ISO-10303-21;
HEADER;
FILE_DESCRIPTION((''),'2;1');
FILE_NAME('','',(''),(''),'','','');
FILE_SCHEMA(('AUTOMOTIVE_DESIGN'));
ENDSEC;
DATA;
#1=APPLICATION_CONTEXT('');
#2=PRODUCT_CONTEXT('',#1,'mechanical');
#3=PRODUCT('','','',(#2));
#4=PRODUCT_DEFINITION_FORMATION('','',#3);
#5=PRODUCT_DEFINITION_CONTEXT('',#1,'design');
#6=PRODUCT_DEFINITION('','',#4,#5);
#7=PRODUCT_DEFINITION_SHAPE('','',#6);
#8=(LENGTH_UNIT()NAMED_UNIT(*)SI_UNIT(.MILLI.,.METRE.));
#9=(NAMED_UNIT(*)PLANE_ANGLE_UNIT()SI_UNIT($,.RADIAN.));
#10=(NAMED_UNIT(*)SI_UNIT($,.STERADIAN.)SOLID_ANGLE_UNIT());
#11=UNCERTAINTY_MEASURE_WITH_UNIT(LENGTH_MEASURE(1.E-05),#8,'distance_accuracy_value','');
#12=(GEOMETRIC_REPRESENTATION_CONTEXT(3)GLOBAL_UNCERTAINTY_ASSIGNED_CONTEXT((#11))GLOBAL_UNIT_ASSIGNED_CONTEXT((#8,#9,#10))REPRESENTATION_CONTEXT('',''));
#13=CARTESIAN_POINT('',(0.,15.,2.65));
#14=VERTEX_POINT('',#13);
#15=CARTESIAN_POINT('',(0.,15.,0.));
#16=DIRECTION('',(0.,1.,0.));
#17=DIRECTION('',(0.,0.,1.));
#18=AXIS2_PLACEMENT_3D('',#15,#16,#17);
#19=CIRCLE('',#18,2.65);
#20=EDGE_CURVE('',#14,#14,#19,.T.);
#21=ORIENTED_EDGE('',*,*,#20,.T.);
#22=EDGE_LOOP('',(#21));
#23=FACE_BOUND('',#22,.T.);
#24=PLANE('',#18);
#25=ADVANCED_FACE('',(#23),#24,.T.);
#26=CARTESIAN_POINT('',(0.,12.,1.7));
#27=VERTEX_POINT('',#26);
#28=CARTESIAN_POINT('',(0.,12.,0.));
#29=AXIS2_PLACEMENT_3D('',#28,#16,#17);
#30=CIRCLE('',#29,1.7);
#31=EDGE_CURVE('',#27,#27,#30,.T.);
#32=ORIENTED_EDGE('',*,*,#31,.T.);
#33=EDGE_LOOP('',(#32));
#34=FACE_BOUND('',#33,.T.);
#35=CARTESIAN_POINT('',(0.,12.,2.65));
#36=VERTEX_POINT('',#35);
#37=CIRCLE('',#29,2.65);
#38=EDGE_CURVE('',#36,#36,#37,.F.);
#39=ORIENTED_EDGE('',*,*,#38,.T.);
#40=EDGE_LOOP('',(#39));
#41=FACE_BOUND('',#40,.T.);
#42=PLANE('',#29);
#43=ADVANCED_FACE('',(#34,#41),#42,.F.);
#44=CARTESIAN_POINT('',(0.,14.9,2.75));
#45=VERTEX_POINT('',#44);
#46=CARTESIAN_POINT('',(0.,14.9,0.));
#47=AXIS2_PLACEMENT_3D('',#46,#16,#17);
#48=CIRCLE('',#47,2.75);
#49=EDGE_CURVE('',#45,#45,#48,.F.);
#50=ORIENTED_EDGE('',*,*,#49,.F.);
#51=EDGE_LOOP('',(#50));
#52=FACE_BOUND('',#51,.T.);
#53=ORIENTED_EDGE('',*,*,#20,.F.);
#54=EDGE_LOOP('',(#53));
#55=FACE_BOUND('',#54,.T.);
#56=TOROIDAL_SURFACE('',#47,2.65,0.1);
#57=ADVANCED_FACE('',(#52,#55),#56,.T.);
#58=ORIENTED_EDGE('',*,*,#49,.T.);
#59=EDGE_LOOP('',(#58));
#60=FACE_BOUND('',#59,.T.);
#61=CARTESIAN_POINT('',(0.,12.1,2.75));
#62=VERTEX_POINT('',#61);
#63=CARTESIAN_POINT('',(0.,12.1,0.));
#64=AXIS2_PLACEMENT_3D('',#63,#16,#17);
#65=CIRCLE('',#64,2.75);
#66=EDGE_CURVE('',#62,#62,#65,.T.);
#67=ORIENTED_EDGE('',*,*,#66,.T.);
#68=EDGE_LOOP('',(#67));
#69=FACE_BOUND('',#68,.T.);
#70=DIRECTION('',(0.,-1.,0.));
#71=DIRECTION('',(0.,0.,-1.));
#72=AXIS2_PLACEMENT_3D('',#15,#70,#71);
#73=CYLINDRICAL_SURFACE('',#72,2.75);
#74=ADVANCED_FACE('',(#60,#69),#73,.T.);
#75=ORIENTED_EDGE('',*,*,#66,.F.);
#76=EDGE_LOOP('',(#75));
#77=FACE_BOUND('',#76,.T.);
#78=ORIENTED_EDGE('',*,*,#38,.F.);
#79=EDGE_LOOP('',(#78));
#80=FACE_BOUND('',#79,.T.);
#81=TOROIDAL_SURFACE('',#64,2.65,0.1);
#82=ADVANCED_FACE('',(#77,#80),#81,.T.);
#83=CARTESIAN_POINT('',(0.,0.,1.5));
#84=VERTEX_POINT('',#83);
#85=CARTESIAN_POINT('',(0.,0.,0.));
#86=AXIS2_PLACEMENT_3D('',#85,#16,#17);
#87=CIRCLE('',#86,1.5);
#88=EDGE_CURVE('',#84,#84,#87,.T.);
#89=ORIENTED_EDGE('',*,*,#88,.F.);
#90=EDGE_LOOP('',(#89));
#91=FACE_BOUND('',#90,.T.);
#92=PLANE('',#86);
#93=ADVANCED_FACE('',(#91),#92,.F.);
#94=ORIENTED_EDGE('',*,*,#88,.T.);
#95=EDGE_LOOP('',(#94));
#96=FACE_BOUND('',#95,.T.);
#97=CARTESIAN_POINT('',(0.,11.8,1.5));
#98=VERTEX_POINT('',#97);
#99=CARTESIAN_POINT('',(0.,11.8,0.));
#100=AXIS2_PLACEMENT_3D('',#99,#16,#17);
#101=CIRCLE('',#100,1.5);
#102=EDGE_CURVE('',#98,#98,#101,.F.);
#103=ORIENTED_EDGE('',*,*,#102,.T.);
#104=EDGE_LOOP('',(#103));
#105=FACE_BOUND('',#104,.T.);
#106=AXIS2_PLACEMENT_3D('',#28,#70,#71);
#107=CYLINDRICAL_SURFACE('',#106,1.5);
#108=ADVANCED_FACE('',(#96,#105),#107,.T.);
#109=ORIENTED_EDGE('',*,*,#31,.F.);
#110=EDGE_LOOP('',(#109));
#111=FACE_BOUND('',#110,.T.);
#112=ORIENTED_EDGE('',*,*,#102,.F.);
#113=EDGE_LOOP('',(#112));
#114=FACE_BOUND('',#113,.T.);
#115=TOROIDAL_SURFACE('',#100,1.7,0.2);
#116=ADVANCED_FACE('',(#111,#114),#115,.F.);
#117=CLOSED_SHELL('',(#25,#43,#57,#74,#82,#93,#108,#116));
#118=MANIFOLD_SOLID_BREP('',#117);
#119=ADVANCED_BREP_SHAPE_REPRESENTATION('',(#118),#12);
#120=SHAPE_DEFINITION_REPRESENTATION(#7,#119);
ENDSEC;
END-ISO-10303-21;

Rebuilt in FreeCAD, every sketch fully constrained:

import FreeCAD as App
import Part
import Sketcher
from FreeCAD import Vector
Q = App.Units.Quantity


def edges_at(feature, points):
    """Names of the edges that pass closest to the given points."""
    edges = feature.Shape.Edges
    near = lambda p: min(range(len(edges)), key=lambda i: edges[i].distToShape(Part.Vertex(*p))[0])
    return sorted({f"Edge{near(p) + 1}" for p in points})

doc = App.newDocument("Part")
body = doc.addObject("PartDesign::Body", "Body")

# Sketch on XZ plane
sketch1 = body.newObject("Sketcher::SketchObject", "Sketch")
sketch1.AttachmentSupport = (doc.getObject("XZ_Plane"), [""])
sketch1.MapMode = "FlatFace"
sketch1.addGeometry(Part.Circle(Vector(0, 0, 0), Vector(0, 0, 1), 1.5), False)
sketch1.addConstraint([
    Sketcher.Constraint("Coincident", 0, 3, -1, 1),
    Sketcher.Constraint("Diameter", 0, Q("3 mm")),
])
pad1 = body.newObject("PartDesign::Pad", "Pad")
pad1.Profile = sketch1
pad1.Length = 12
pad1.Reversed = True

# Sketch on XZ plane
sketch2 = body.newObject("Sketcher::SketchObject", "Sketch001")
sketch2.AttachmentSupport = (doc.getObject("XZ_Plane"), [""])
sketch2.MapMode = "FlatFace"
sketch2.AttachmentOffset = App.Placement(Vector(0, 0, -12), App.Rotation())
sketch2.addGeometry(Part.Circle(Vector(0, 0, 0), Vector(0, 0, 1), 2.8), False)
sketch2.addConstraint([
    Sketcher.Constraint("Coincident", 0, 3, -1, 1),
    Sketcher.Constraint("Diameter", 0, Q("5.5 mm")),
])
pad2 = body.newObject("PartDesign::Pad", "Pad001")
pad2.Profile = sketch2
pad2.Length = 3
pad2.Reversed = True
doc.recompute()

fillet = body.newObject("PartDesign::Fillet", "Fillet")
fillet.Base = (pad2, edges_at(pad2, [(0, 12, -1.5)]))
fillet.Radius = 0.2
doc.recompute()

fillet2 = body.newObject("PartDesign::Fillet", "Fillet001")
fillet2.Base = (fillet, edges_at(fillet, [(0, 15, -2.75)]))
fillet2.Radius = 0.1
doc.recompute()

fillet3 = body.newObject("PartDesign::Fillet", "Fillet002")
fillet3.Base = (fillet2, edges_at(fillet2, [(0, 12, -2.75)]))
fillet3.Radius = 0.1

doc.recompute()
